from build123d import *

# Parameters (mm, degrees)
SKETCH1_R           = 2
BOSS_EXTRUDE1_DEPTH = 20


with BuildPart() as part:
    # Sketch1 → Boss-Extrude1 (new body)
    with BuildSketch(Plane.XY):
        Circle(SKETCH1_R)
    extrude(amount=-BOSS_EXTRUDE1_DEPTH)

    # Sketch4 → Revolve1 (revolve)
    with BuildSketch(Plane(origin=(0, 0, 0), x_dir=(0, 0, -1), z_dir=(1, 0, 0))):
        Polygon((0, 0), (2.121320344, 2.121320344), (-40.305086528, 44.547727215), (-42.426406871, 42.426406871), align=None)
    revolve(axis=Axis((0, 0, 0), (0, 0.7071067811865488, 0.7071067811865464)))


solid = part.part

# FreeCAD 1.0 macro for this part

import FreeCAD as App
import Part
import Sketcher
from FreeCAD import Vector
Q = App.Units.Quantity


def add_polygon(sketch, points):
    """Adds a closed chain of lines whose ends are joined by coincident constraints."""
    first, n = sketch.GeometryCount, len(points)
    for a, b in zip(points, points[1:] + points[:1]):
        sketch.addGeometry(Part.LineSegment(App.Vector(*a, 0), App.Vector(*b, 0)), False)
    for i in range(n):
        sketch.addConstraint(Sketcher.Constraint("Coincident", first + i, 2, first + (i + 1) % n, 1))

doc = App.newDocument("Part")
body = doc.addObject("PartDesign::Body", "Body")

# Sketch on XY plane
sketch1 = body.newObject("Sketcher::SketchObject", "Sketch")
sketch1.AttachmentSupport = (doc.getObject("XY_Plane"), [""])
sketch1.MapMode = "FlatFace"
sketch1.addGeometry(Part.Circle(Vector(0, 0, 0), Vector(0, 0, 1), 2), False)
sketch1.addConstraint([
    Sketcher.Constraint("Coincident", 0, 3, -1, 1),
    Sketcher.Constraint("Diameter", 0, Q("4 mm")),
])
pad1 = body.newObject("PartDesign::Pad", "Pad")
pad1.Profile = sketch1
pad1.Length = 20
pad1.Reversed = True

# Sketch on YZ plane
sketch2 = body.newObject("Sketcher::SketchObject", "Sketch001")
sketch2.AttachmentSupport = (doc.getObject("YZ_Plane"), [""])
sketch2.MapMode = "FlatFace"
add_polygon(sketch2, [(0, 0), (2.12132, -2.12132), (44.547727, 40.305087), (42.426407, 42.426407)])  # lines 0-3
sketch2.addGeometry(Part.LineSegment(Vector(0, 0, 0), Vector(42.426407, 42.426407, 0)), True)  # axis
sketch2.addConstraint([
    Sketcher.Constraint("Coincident", 3, 2, -1, 1),
    Sketcher.Constraint("Coincident", 4, 1, -1, 1),
    Sketcher.Constraint("Coincident", 4, 2, 2, 2),
    Sketcher.Constraint("Perpendicular", 0, 1),
    Sketcher.Constraint("Perpendicular", 1, 2),
    Sketcher.Constraint("Perpendicular", 2, 3),
    Sketcher.Constraint("Angle", 0, Q("-45 deg")),
    Sketcher.Constraint("Distance", 0, Q("3 mm")),
    Sketcher.Constraint("Distance", 1, Q("60 mm")),
])
revolution = body.newObject("PartDesign::Revolution", "Revolution")
revolution.Profile = sketch2
revolution.ReferenceAxis = (sketch2, ["Axis0"])
revolution.Angle = 360

doc.recompute()
